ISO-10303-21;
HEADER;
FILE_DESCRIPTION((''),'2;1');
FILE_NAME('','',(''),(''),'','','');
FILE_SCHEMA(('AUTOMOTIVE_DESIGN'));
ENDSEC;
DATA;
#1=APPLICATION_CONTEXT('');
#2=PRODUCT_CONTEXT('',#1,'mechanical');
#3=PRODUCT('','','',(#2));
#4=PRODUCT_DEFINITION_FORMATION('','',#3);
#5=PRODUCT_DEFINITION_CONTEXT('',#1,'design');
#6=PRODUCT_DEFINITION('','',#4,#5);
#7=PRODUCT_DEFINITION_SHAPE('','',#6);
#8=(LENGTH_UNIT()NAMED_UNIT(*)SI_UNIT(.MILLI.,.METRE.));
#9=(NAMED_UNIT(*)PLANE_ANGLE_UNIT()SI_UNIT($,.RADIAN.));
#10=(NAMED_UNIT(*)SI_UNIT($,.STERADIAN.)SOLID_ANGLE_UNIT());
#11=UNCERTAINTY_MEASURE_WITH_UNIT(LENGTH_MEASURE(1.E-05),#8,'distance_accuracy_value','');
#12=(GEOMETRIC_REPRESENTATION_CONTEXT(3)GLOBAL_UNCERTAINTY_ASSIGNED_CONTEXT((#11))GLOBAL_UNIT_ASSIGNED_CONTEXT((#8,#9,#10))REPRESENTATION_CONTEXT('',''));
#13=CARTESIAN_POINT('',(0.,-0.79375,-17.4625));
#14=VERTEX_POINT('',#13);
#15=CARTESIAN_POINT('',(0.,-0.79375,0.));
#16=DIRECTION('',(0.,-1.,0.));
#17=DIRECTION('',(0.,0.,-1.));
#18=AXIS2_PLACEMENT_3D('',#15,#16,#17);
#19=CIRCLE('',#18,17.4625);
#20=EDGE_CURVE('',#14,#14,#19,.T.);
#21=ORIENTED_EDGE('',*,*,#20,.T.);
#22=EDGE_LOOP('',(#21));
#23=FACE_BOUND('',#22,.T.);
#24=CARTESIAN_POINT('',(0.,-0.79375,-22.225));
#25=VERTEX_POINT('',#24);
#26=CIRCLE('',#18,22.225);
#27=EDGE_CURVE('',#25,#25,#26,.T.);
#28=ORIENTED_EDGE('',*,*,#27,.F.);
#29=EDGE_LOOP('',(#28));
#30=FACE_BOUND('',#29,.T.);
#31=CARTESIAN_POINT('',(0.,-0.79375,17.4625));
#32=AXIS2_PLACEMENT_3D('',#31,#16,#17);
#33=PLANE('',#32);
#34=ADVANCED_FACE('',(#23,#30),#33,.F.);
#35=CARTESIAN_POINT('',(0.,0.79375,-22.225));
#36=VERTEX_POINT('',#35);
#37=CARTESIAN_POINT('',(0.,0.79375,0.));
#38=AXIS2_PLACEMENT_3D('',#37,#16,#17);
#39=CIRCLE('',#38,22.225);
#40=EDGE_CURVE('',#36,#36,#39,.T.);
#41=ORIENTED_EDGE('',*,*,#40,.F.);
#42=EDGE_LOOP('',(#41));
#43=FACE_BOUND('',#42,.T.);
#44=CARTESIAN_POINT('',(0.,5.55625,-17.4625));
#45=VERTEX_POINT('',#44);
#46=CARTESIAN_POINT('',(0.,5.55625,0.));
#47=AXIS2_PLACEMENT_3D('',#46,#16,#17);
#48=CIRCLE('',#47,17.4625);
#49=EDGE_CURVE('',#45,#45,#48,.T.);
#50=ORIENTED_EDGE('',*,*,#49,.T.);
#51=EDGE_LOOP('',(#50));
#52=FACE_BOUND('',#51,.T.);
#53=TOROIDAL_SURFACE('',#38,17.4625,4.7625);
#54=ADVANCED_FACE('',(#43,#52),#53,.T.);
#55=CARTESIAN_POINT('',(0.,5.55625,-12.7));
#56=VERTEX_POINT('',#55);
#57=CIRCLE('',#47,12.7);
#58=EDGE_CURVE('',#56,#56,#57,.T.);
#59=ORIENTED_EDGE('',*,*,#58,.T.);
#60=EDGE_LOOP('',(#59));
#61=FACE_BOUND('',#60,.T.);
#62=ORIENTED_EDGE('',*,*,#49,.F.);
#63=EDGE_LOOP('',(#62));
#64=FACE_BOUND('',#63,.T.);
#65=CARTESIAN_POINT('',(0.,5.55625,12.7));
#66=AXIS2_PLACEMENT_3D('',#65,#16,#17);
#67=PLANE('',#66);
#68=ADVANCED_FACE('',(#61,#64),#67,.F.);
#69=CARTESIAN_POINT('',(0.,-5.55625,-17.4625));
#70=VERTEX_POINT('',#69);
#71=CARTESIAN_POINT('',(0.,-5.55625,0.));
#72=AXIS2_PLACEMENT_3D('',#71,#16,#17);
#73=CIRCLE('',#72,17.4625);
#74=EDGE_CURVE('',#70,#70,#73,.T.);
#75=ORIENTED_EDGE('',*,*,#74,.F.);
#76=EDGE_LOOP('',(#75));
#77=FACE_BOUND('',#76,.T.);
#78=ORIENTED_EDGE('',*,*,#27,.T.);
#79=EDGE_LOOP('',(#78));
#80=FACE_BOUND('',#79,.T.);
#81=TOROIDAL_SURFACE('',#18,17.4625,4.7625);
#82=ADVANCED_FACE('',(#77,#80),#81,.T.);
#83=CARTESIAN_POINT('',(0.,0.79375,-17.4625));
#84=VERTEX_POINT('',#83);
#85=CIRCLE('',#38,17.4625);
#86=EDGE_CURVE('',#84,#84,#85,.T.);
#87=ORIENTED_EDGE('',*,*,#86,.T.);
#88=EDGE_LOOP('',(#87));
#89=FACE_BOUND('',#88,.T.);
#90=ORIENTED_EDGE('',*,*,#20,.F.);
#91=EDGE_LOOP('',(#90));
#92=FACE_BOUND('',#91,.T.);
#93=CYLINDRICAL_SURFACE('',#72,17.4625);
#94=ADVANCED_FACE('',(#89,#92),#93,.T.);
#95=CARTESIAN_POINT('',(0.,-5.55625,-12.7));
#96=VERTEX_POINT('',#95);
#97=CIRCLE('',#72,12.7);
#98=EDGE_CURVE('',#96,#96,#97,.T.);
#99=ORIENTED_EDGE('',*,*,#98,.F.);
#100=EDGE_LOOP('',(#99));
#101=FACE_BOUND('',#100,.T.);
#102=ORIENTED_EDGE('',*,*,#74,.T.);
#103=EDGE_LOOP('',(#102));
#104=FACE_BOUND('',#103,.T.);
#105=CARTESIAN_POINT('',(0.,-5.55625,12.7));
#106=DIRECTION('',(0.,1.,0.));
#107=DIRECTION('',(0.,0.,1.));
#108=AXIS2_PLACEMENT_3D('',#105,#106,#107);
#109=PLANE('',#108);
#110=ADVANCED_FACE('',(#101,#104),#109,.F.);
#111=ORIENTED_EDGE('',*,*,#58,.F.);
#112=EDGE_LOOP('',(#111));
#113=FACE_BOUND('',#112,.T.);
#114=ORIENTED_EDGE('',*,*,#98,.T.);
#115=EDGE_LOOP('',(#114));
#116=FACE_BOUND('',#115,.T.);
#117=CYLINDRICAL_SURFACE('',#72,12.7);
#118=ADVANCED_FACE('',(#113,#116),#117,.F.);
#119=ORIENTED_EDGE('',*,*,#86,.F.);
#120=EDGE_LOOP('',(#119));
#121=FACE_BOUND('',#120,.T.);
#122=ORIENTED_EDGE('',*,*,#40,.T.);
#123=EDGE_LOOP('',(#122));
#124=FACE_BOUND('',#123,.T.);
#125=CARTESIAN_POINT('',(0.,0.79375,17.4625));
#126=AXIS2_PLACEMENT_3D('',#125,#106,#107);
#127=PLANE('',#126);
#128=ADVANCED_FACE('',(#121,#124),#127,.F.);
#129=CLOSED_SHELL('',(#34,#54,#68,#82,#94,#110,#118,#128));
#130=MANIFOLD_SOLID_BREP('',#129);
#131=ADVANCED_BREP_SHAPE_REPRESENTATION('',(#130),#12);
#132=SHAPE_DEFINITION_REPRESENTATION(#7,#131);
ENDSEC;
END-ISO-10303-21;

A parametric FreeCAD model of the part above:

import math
import FreeCAD as App
import Part
import Sketcher

V = App.Vector
Q = App.Units.Quantity

doc = App.newDocument("Part")
body = doc.addObject("PartDesign::Body", "Body")

sketch1 = doc.addObject("Sketcher::SketchObject", "Sketch")
body.addObject(sketch1)
sketch1.AttachmentSupport = (doc.YZ_Plane, [""])
sketch1.MapMode = "FlatFace"
sketch1.addGeometry([
    Part.LineSegment(V(-5.6, 12.7, 0), V(5.6, 12.7, 0)),
    Part.LineSegment(V(5.6, 12.7, 0), V(5.6, 17.5, 0)),
    Part.ArcOfCircle(Part.Circle(V(0.8, 17.5, 0), V(0, 0, 1), 4.8), math.radians(0), math.radians(90)),
    Part.LineSegment(V(0.8, 22.2, 0), V(0.8, 17.5, 0)),
    Part.LineSegment(V(0.8, 17.5, 0), V(-0.8, 17.5, 0)),
    Part.LineSegment(V(-0.8, 17.5, 0), V(-0.8, 22.2, 0)),
    Part.ArcOfCircle(Part.Circle(V(-0.8, 17.5, 0), V(0, 0, 1), 4.8), math.radians(90), math.radians(180)),
    Part.LineSegment(V(-5.6, 17.5, 0), V(-5.6, 12.7, 0)),
], False)
sketch1.addConstraint([
    Sketcher.Constraint("Coincident", 0, 2, 1, 1),
    Sketcher.Constraint("Tangent", 1, 2, 2, 1),
    Sketcher.Constraint("Coincident", 2, 2, 3, 1),
    Sketcher.Constraint("Coincident", 3, 2, 4, 1),
    Sketcher.Constraint("Coincident", 4, 2, 5, 1),
    Sketcher.Constraint("Coincident", 5, 2, 6, 1),
    Sketcher.Constraint("Tangent", 6, 2, 7, 1),
    Sketcher.Constraint("Coincident", 7, 2, 0, 1),
    Sketcher.Constraint("Horizontal", 0),
    Sketcher.Constraint("Vertical", 1),
    Sketcher.Constraint("Vertical", 3),
    Sketcher.Constraint("Horizontal", 4),
    Sketcher.Constraint("Vertical", 5),
    Sketcher.Constraint("Vertical", 7),
    Sketcher.Constraint("Coincident", 3, 2, 2, 3),
    Sketcher.Constraint("Coincident", 4, 2, 6, 3),
    Sketcher.Constraint("Equal", 2, 6),
    Sketcher.Constraint("Equal", 1, 3),
    Sketcher.Constraint("Radius", 2, Q("0.1875 in")),
    Sketcher.Constraint("DistanceY", -1, 1, 0, 2, Q("0.5 in")),
    Sketcher.Constraint("DistanceX", 0, 1, 0, 2, Q("0.4375 in")),
    Sketcher.Constraint("DistanceX", -1, 1, 2, 3, Q("0.03125 in")),
])
revolution = doc.addObject("PartDesign::Revolution", "Revolution")
body.addObject(revolution)
revolution.Profile = sketch1
revolution.ReferenceAxis = (sketch1, ["H_Axis"])
revolution.Angle = 360

doc.recompute()
